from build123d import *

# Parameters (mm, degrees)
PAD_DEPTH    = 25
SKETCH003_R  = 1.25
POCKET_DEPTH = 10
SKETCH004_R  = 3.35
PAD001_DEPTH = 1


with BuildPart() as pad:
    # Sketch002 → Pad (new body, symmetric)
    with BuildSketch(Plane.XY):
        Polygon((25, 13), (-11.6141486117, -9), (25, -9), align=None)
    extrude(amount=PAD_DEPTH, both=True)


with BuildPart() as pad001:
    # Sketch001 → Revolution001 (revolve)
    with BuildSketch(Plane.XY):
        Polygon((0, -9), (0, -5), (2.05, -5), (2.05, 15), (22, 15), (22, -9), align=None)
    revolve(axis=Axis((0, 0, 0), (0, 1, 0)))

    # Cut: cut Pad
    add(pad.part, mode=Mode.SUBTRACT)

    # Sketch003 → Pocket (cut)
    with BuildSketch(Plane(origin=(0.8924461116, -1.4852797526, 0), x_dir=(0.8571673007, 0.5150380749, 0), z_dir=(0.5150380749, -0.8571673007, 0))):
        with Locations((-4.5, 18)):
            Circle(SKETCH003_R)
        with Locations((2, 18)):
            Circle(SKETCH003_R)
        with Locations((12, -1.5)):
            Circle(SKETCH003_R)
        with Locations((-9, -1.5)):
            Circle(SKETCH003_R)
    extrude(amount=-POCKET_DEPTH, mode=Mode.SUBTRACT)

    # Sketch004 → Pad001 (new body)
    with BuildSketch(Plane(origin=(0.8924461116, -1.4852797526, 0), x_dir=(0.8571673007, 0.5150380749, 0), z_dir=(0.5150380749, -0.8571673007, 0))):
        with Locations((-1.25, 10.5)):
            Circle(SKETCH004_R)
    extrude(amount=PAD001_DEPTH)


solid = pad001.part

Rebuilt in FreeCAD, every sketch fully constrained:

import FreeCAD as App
import Part
import Sketcher
from FreeCAD import Vector
Q = App.Units.Quantity


def add_polygon(sketch, points):
    """Adds a closed chain of lines whose ends are joined by coincident constraints."""
    first, n = sketch.GeometryCount, len(points)
    for a, b in zip(points, points[1:] + points[:1]):
        sketch.addGeometry(Part.LineSegment(App.Vector(*a, 0), App.Vector(*b, 0)), False)
    for i in range(n):
        sketch.addConstraint(Sketcher.Constraint("Coincident", first + i, 2, first + (i + 1) % n, 1))

doc = App.newDocument("Part")
body = doc.addObject("PartDesign::Body", "Body")

# Sketch on XY plane
sketch1 = doc.addObject("Sketcher::SketchObject", "Sketch")
body.addObject(sketch1)
sketch1.AttachmentSupport = (doc.XY_Plane, [""])
sketch1.MapMode = "FlatFace"
add_polygon(sketch1, [(25, 13), (-12, -9), (25, -9)])  # lines 0-2
sketch1.addConstraint(Sketcher.Constraint("Horizontal", 1))
sketch1.addConstraint(Sketcher.Constraint("Vertical", 2))
sketch1.addConstraint(Sketcher.Constraint("DistanceY", 2, 1, 2, 2, 22.0))
sketch1.addConstraint(Sketcher.Constraint("Angle", 0, Q("-149 deg")))
sketch1.addConstraint(Sketcher.Constraint("DistanceY", 0, 2, -1, 1, 9.0))
sketch1.addConstraint(Sketcher.Constraint("DistanceX", -1, 1, 1, 2, 25.0))
pad1 = doc.addObject("PartDesign::Pad", "Pad")
body.addObject(pad1)
pad1.Profile = sketch1
pad1.Length = 50
pad1.Midplane = True
body2 = doc.addObject("PartDesign::Body", "Body001")

# Sketch on XY plane
sketch2 = doc.addObject("Sketcher::SketchObject", "Sketch001")
body2.addObject(sketch2)
sketch2.AttachmentSupport = (doc.getObject("XY_Plane001"), [""])
sketch2.MapMode = "FlatFace"
add_polygon(sketch2, [(0, -5), (0, -9), (22, -9), (22, 15), (2, 15), (2, -5)])  # lines 0-5
sketch2.addConstraint(Sketcher.Constraint("Vertical", 0))
sketch2.addConstraint(Sketcher.Constraint("Horizontal", 1))
sketch2.addConstraint(Sketcher.Constraint("Vertical", 2))
sketch2.addConstraint(Sketcher.Constraint("Horizontal", 3))
sketch2.addConstraint(Sketcher.Constraint("Vertical", 4))
sketch2.addConstraint(Sketcher.Constraint("Horizontal", 5))
sketch2.addConstraint(Sketcher.Constraint("PointOnObject", 0, 2, -2))
sketch2.addConstraint(Sketcher.Constraint("DistanceX", 1, 1, 1, 2, 22.0))
sketch2.addConstraint(Sketcher.Constraint("DistanceY", 0, 2, 0, 1, 4.0))
sketch2.addConstraint(Sketcher.Constraint("DistanceY", 2, 1, 2, 2, 24.0))
sketch2.addConstraint(Sketcher.Constraint("DistanceY", 0, 2, -1, 1, 9.0))
sketch2.addConstraint(Sketcher.Constraint("DistanceX", 3, 2, 3, 1, 19.95))
revolution = doc.addObject("PartDesign::Revolution", "Revolution")
body2.addObject(revolution)
revolution.Profile = sketch2
revolution.ReferenceAxis = (sketch2, ["V_Axis"])
revolution.Angle = 360
doc.recompute()

boolean = doc.addObject("PartDesign::Boolean", "Boolean")
body2.addObject(boolean)
boolean.Type = "Cut"
boolean.addObjects([body])

# Sketch on an angled plane
sketch3 = doc.addObject("Sketcher::SketchObject", "Sketch002")
body2.addObject(sketch3)
sketch3.Placement = App.Placement(Vector(0.892446, -1.48528, 0), App.Rotation(Vector(0.857167301, 0.515038075, 0), Vector(0, 0, 1.000000001), Vector(0.515038075, -0.857167301, 0), "ZXY"))
sketch3.addGeometry(Part.Circle(Vector(-4.5, 18, 0), Vector(0, 0, 1), 1.2), False)
sketch3.addGeometry(Part.Circle(Vector(2, 18, 0), Vector(0, 0, 1), 1.2), False)
sketch3.addGeometry(Part.Circle(Vector(12, -1.5, 0), Vector(0, 0, 1), 1.2), False)
sketch3.addGeometry(Part.Circle(Vector(-9, -1.5, 0), Vector(0, 0, 1), 1.2), False)
sketch3.addConstraint(Sketcher.Constraint("Equal", 0, 1))
sketch3.addConstraint(Sketcher.Constraint("Equal", 1, 2))
sketch3.addConstraint(Sketcher.Constraint("Equal", 2, 3))
sketch3.addConstraint(Sketcher.Constraint("Horizontal", 0, 3, 1, 3))
sketch3.addConstraint(Sketcher.Constraint("Horizontal", 2, 3, 3, 3))
sketch3.addConstraint(Sketcher.Constraint("Diameter", 0, 2.5))
sketch3.addConstraint(Sketcher.Constraint("DistanceY", -1, 1, 0, 3, 18.0))
sketch3.addConstraint(Sketcher.Constraint("DistanceX", -1, 1, 1, 3, 2.0))
sketch3.addConstraint(Sketcher.Constraint("DistanceX", -1, 1, 2, 3, 12.0))
sketch3.addConstraint(Sketcher.Constraint("DistanceX", 3, 3, -1, 1, 9.0))
sketch3.addConstraint(Sketcher.Constraint("DistanceX", 0, 3, -1, 1, 4.5))
sketch3.addConstraint(Sketcher.Constraint("DistanceY", 2, 3, -1, 1, 1.5))
pocket1 = doc.addObject("PartDesign::Pocket", "Pocket")
body2.addObject(pocket1)
pocket1.Profile = sketch3
pocket1.Length = 10

# Sketch on an angled plane
sketch4 = doc.addObject("Sketcher::SketchObject", "Sketch003")
body2.addObject(sketch4)
sketch4.Placement = App.Placement(Vector(0.892446, -1.48528, 0), App.Rotation(Vector(0.857167301, 0.515038075, 0), Vector(0, 0, 1.000000001), Vector(0.515038075, -0.857167301, 0), "ZXY"))
sketch4.addGeometry(Part.Circle(Vector(-1.3, 10.5, 0), Vector(0, 0, 1), 3.4), False)
sketch4.addConstraint(Sketcher.Constraint("Diameter", 0, 6.7))
sketch4.addConstraint(Sketcher.Constraint("DistanceY", -1, 1, 0, 3, 10.5))
sketch4.addConstraint(Sketcher.Constraint("DistanceX", 0, 3, -1, 1, 1.25))
pad2 = doc.addObject("PartDesign::Pad", "Pad001")
body2.addObject(pad2)
pad2.Profile = sketch4
pad2.Length = 1

doc.recompute()
